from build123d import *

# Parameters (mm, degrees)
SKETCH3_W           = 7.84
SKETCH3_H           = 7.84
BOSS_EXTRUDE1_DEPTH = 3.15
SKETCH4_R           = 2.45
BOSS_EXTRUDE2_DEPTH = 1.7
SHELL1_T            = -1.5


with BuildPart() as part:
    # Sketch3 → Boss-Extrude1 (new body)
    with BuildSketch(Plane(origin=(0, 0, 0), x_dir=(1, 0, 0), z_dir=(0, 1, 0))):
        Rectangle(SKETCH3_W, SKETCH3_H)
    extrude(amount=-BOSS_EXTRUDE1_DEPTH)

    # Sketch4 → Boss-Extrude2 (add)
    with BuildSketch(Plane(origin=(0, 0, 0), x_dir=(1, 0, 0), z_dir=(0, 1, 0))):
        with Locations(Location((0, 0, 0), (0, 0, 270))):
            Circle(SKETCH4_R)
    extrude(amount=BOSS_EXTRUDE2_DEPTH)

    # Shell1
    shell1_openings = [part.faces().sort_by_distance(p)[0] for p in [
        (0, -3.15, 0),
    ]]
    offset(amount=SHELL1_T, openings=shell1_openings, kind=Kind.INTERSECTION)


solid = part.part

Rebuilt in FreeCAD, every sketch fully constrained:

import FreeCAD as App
import Part
import Sketcher
from FreeCAD import Vector
Q = App.Units.Quantity


def faces_at(feature, points):
    """Names of the faces that lie closest to the given points."""
    faces = feature.Shape.Faces
    near = lambda p: min(range(len(faces)), key=lambda i: faces[i].distToShape(Part.Vertex(*p))[0])
    return sorted({f"Face{near(p) + 1}" for p in points})

doc = App.newDocument("Part")
body = doc.addObject("PartDesign::Body", "Body")

sketch1 = body.newObject("Sketcher::SketchObject", "Sketch")
sketch1.AttachmentSupport = (doc.getObject("XZ_Plane"), [""])
sketch1.MapMode = "FlatFace"
sketch1.addGeometry([
    Part.LineSegment(Vector(-4, -4, 0), Vector(-4, 4, 0)),
    Part.LineSegment(Vector(-4, 4, 0), Vector(4, 4, 0)),
    Part.LineSegment(Vector(4, 4, 0), Vector(4, -4, 0)),
    Part.LineSegment(Vector(4, -4, 0), Vector(-4, -4, 0)),
], False)
sketch1.addConstraint([
    Sketcher.Constraint("Coincident", 0, 2, 1, 1),
    Sketcher.Constraint("Coincident", 1, 2, 2, 1),
    Sketcher.Constraint("Coincident", 2, 2, 3, 1),
    Sketcher.Constraint("Coincident", 3, 2, 0, 1),
    Sketcher.Constraint("Vertical", 0),
    Sketcher.Constraint("Horizontal", 1),
    Sketcher.Constraint("Vertical", 2),
    Sketcher.Constraint("Horizontal", 3),
    Sketcher.Constraint("Symmetric", 0, 2, 2, 2, -1, 1),
    Sketcher.Constraint("Equal", 3, 0),
    Sketcher.Constraint("DistanceX", 1, 1, 1, 2, Q("7.84 mm")),
])
pad1 = body.newObject("PartDesign::Pad", "Pad")
pad1.Profile = sketch1
pad1.Length = 3.15

sketch2 = body.newObject("Sketcher::SketchObject", "Sketch001")
sketch2.AttachmentSupport = (doc.getObject("XZ_Plane"), [""])
sketch2.MapMode = "FlatFace"
sketch2.addGeometry(Part.Circle(Vector(0, 0, 0), Vector(0, 0, 1), 2.5), False)
sketch2.addConstraint([
    Sketcher.Constraint("Coincident", 0, 3, -1, 1),
    Sketcher.Constraint("Diameter", 0, Q("4.9 mm")),
])
pad2 = body.newObject("PartDesign::Pad", "Pad001")
pad2.Profile = sketch2
pad2.Length = 1.7
pad2.Reversed = True
doc.recompute()

thickness = body.newObject("PartDesign::Thickness", "Thickness")
thickness.Base = (pad2, faces_at(pad2, [(0, -3.15, 0)]))
thickness.Value = 1.5
thickness.Reversed = True
thickness.Join = "Intersection"

doc.recompute()
